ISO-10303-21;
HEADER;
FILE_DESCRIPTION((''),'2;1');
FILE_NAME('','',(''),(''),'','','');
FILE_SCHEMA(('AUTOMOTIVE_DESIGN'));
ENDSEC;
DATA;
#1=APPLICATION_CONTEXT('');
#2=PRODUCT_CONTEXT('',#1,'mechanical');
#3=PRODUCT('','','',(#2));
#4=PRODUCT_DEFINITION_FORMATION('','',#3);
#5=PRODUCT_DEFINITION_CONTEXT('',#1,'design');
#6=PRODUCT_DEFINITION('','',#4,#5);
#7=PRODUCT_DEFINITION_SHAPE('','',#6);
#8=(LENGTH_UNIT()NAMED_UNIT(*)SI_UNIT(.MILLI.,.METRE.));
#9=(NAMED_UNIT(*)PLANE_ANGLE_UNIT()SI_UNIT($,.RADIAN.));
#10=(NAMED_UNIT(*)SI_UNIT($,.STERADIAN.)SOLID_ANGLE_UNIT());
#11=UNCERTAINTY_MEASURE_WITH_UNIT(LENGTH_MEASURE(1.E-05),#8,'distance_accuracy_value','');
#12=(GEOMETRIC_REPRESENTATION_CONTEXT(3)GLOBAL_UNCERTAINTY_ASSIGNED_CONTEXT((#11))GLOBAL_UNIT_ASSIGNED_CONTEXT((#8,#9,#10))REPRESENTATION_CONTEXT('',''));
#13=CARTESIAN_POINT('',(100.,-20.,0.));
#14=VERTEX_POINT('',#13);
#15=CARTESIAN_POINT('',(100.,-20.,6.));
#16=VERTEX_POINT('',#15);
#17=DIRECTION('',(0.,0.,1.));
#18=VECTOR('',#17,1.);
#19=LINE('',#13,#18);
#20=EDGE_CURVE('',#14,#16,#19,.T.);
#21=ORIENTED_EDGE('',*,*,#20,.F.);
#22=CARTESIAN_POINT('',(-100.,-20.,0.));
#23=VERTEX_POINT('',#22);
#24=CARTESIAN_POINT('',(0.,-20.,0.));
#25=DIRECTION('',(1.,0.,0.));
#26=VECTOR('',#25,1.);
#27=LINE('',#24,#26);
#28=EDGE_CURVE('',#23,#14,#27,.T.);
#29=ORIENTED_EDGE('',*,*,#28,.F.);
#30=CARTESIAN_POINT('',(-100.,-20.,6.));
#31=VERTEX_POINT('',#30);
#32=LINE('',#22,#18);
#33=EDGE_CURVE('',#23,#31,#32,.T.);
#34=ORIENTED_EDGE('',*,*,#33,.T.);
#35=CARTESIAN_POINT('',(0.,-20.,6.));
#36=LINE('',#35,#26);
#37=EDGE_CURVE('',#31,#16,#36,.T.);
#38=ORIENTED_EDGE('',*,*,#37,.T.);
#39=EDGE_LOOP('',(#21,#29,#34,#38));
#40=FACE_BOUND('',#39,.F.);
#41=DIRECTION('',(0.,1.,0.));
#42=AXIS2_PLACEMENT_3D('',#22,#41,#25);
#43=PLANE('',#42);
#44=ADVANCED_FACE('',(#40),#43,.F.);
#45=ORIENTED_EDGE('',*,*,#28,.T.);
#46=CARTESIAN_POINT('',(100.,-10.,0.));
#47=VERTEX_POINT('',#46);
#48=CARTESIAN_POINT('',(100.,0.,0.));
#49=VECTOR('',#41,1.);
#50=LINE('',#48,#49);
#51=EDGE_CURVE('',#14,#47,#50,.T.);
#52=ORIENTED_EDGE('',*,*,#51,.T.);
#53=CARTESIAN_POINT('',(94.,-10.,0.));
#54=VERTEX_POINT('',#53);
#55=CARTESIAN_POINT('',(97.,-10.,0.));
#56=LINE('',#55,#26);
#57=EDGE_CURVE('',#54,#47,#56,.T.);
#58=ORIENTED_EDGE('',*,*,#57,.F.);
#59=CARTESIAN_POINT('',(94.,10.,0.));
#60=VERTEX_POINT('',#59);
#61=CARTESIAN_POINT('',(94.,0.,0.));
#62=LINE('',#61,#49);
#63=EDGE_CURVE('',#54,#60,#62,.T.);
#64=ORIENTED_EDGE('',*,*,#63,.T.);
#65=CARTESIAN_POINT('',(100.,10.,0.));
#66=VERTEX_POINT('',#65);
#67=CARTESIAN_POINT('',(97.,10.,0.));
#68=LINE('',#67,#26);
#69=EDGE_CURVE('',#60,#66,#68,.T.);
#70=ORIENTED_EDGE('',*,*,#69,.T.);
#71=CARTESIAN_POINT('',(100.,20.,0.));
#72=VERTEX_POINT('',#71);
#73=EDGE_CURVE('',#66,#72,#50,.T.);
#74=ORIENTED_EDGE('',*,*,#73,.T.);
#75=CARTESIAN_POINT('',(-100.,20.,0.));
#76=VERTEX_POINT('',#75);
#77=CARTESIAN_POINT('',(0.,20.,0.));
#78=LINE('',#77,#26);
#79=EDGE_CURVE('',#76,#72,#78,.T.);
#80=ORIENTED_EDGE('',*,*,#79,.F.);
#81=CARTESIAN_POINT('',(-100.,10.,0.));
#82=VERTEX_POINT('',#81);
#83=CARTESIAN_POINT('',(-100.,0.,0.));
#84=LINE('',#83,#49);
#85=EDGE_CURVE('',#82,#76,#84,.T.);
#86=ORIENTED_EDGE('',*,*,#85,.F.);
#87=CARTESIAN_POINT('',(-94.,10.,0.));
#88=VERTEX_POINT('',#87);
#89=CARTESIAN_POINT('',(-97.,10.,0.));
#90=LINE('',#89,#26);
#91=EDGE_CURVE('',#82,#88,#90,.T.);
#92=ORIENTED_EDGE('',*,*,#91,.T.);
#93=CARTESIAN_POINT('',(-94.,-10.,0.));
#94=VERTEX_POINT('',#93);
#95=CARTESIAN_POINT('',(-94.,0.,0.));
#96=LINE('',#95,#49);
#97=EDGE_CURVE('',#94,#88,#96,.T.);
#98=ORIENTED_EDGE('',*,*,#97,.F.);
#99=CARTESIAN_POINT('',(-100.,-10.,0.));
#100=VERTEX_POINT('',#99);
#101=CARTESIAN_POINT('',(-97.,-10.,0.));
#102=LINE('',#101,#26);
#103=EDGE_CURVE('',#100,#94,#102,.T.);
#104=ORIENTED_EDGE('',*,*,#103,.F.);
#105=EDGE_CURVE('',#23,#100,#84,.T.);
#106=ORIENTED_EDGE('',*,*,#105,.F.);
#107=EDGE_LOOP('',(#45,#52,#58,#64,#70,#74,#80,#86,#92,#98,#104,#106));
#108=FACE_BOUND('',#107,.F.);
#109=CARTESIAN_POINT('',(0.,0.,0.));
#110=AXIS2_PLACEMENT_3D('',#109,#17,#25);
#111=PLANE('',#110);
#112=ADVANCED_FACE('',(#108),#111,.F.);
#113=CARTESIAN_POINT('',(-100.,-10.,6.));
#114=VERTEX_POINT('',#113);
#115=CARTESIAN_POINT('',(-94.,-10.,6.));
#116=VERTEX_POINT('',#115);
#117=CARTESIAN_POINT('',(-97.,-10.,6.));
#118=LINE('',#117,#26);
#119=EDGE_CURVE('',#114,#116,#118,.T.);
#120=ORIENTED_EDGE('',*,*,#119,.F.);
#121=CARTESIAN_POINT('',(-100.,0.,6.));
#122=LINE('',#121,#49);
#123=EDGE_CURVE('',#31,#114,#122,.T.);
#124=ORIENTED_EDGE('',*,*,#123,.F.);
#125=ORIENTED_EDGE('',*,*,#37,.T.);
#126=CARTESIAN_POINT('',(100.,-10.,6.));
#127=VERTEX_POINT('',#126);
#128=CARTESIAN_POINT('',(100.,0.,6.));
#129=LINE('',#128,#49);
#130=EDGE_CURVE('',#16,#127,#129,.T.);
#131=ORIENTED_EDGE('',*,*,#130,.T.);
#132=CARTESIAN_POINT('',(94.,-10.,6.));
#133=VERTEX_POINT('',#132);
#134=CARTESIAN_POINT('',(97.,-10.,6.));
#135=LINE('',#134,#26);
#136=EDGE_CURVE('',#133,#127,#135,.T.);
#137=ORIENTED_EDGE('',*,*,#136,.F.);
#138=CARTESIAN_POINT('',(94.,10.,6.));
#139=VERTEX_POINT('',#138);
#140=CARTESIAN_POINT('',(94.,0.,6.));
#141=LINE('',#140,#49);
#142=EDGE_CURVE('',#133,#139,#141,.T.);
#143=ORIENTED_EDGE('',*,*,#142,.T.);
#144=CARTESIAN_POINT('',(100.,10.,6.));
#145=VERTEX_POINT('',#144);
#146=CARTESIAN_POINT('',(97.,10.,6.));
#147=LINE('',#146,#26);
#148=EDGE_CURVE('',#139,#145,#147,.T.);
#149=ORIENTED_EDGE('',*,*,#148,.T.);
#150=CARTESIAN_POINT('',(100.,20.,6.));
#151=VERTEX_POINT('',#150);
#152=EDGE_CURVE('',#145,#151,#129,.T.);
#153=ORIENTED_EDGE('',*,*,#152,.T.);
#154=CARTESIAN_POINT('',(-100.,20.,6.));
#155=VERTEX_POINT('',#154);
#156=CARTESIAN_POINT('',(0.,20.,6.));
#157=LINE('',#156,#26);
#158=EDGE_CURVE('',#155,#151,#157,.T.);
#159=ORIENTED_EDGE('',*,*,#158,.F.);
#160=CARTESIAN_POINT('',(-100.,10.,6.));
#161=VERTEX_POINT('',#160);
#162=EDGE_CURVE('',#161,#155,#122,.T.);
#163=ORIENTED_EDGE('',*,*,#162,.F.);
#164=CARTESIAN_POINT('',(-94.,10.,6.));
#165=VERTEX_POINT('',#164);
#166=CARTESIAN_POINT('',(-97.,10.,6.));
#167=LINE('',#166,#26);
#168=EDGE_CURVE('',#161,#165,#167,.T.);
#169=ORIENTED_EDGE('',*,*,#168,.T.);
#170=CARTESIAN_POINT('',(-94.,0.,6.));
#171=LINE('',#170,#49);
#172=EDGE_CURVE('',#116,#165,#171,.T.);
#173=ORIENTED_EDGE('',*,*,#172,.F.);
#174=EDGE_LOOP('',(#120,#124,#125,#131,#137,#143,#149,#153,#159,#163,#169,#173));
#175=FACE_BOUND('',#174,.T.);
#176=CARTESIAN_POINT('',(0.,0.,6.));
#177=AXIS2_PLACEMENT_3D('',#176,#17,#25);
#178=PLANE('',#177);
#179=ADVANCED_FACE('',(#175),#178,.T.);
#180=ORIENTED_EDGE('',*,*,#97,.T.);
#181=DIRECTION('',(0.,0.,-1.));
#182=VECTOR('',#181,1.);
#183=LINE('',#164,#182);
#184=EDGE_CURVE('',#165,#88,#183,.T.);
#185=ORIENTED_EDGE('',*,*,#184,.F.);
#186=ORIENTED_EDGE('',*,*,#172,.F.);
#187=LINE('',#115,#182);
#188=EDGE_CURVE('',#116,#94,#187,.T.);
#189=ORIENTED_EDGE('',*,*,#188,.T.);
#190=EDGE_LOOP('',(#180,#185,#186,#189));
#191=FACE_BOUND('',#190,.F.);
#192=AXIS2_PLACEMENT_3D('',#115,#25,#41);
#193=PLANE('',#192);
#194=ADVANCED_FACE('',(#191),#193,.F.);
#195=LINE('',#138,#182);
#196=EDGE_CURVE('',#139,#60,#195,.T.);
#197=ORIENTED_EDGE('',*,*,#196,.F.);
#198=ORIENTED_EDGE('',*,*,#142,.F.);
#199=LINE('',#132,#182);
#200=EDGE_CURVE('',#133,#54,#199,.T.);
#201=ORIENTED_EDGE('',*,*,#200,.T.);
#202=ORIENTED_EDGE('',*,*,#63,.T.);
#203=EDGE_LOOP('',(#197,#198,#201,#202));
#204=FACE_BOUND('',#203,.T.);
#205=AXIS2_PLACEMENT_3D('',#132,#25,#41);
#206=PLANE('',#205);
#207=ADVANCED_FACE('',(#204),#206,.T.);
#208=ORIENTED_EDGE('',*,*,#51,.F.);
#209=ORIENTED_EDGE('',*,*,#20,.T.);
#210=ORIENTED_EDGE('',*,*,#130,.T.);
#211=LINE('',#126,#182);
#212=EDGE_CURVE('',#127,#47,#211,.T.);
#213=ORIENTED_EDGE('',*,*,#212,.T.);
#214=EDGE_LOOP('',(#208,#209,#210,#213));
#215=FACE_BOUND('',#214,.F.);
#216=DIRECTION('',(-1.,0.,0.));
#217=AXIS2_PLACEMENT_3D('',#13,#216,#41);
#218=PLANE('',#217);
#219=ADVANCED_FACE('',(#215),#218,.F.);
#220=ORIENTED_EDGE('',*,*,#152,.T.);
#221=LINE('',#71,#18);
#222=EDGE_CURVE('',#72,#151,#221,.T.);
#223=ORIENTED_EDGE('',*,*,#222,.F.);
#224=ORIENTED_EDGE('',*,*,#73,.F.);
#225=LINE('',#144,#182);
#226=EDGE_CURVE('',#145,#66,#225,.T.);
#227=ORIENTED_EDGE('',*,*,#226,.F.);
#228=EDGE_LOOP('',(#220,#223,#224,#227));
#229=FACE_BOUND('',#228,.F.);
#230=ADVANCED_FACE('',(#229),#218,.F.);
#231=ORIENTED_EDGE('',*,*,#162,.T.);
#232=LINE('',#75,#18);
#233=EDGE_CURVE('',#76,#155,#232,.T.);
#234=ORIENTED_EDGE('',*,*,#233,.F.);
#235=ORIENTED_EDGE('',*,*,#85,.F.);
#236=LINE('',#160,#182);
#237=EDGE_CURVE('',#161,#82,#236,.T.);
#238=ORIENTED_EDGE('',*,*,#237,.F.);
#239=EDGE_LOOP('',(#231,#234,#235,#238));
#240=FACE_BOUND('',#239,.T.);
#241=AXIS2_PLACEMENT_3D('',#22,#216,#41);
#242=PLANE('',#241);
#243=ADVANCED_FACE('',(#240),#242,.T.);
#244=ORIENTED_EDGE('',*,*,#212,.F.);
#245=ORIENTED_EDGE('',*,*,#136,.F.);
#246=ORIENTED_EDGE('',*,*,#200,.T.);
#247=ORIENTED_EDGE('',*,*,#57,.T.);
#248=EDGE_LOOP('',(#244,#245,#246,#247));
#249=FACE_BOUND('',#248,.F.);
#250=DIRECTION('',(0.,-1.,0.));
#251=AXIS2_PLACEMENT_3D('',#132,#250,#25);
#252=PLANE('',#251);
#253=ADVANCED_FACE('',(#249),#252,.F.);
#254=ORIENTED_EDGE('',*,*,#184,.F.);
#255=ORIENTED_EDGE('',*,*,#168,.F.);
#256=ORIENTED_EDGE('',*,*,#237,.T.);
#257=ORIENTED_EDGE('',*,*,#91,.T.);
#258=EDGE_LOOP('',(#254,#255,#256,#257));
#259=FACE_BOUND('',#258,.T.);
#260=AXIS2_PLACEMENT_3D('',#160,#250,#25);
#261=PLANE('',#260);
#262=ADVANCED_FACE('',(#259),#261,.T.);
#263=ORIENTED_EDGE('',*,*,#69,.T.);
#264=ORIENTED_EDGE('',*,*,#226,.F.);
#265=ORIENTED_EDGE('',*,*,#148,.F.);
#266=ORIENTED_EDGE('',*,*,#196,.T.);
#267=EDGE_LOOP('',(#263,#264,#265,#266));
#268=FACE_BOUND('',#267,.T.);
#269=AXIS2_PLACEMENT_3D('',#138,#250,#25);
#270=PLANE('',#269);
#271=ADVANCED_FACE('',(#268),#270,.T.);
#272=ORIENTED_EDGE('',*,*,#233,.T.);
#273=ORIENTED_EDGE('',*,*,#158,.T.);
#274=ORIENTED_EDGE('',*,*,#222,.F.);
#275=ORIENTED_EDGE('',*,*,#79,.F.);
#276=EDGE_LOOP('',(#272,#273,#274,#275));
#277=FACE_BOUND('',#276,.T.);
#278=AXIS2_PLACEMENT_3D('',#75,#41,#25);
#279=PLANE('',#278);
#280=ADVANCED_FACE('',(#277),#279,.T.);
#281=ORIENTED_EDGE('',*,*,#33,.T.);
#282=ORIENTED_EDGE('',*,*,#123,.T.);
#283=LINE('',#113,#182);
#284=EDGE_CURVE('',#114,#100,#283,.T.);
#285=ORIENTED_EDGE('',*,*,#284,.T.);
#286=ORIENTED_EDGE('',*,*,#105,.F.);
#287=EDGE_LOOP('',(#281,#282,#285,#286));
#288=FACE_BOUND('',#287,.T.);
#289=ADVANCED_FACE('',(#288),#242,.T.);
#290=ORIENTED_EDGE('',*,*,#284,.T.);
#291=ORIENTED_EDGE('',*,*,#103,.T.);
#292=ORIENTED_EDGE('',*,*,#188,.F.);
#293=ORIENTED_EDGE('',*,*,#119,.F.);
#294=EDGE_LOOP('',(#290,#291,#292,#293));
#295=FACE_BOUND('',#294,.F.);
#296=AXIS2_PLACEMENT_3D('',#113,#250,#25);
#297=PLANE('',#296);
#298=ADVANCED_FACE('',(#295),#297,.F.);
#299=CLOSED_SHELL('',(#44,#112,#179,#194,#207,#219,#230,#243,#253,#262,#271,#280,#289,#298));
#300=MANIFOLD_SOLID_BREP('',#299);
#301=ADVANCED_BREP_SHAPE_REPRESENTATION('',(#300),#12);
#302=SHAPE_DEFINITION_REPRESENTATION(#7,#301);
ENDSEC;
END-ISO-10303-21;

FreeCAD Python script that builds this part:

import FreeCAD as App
import Part
import Sketcher

V = App.Vector


def add_polygon(sketch, points):
    """Adds a closed chain of lines whose ends are joined by coincident constraints."""
    first, n = sketch.GeometryCount, len(points)
    for a, b in zip(points, points[1:] + points[:1]):
        sketch.addGeometry(Part.LineSegment(App.Vector(*a, 0), App.Vector(*b, 0)), False)
    for i in range(n):
        sketch.addConstraint(Sketcher.Constraint("Coincident", first + i, 2, first + (i + 1) % n, 1))

doc = App.newDocument("Part")
body = doc.addObject("PartDesign::Body", "Body")

sketch1 = body.newObject("Sketcher::SketchObject", "Sketch")
sketch1.AttachmentSupport = (doc.getObject("XY_Plane"), [""])
sketch1.MapMode = "FlatFace"
add_polygon(sketch1, [(-100, 20), (-100, -20), (100, -20), (100, 20)])
sketch1.addConstraint(Sketcher.Constraint("Vertical", 0))
sketch1.addConstraint(Sketcher.Constraint("Horizontal", 1))
sketch1.addConstraint(Sketcher.Constraint("Vertical", 2))
sketch1.addConstraint(Sketcher.Constraint("Horizontal", 3))
sketch1.addConstraint(Sketcher.Constraint("Symmetric", 0, 2, 2, 2, -1, 1))
sketch1.addConstraint(Sketcher.Constraint("DistanceX", 1, 1, 1, 2, 200.0))
sketch1.addConstraint(Sketcher.Constraint("DistanceY", 0, 2, 0, 1, 40.0))
pad1 = body.newObject("PartDesign::Pad", "Pad")
pad1.Profile = sketch1
pad1.Length = 6

sketch2 = body.newObject("Sketcher::SketchObject", "Sketch001")
sketch2.AttachmentSupport = (doc.getObject("XY_Plane"), [""])
sketch2.MapMode = "FlatFace"
sketch2.AttachmentOffset = App.Placement(V(0, 0, 6), App.Rotation())
add_polygon(sketch2, [(94, 10), (94, -10), (100, -10), (100, 10)])
add_polygon(sketch2, [(-100, 10), (-100, -10), (-94, -10), (-94, 10)])
sketch2.addConstraint(Sketcher.Constraint("Vertical", 0))
sketch2.addConstraint(Sketcher.Constraint("Horizontal", 1))
sketch2.addConstraint(Sketcher.Constraint("Vertical", 2))
sketch2.addConstraint(Sketcher.Constraint("Horizontal", 3))
sketch2.addConstraint(Sketcher.Constraint("Vertical", 4))
sketch2.addConstraint(Sketcher.Constraint("Horizontal", 5))
sketch2.addConstraint(Sketcher.Constraint("Vertical", 6))
sketch2.addConstraint(Sketcher.Constraint("Horizontal", 7))
sketch2.addConstraint(Sketcher.Constraint("Symmetric", 2, 2, 4, 2, -1, 1))
sketch2.addConstraint(Sketcher.Constraint("Symmetric", 0, 2, 6, 2, -1, 1))
sketch2.addConstraint(Sketcher.Constraint("Horizontal", 1, 2, 4, 2))
sketch2.addConstraint(Sketcher.Constraint("DistanceX", 1, 1, 1, 2, 6.0))
sketch2.addConstraint(Sketcher.Constraint("DistanceY", 0, 2, 0, 1, 20.0))
sketch2.addConstraint(Sketcher.Constraint("DistanceX", -1, 1, 0, 2, 94.0))
pocket1 = body.newObject("PartDesign::Pocket", "Pocket")
pocket1.Profile = sketch2
pocket1.Type = "ThroughAll"

doc.recompute()
